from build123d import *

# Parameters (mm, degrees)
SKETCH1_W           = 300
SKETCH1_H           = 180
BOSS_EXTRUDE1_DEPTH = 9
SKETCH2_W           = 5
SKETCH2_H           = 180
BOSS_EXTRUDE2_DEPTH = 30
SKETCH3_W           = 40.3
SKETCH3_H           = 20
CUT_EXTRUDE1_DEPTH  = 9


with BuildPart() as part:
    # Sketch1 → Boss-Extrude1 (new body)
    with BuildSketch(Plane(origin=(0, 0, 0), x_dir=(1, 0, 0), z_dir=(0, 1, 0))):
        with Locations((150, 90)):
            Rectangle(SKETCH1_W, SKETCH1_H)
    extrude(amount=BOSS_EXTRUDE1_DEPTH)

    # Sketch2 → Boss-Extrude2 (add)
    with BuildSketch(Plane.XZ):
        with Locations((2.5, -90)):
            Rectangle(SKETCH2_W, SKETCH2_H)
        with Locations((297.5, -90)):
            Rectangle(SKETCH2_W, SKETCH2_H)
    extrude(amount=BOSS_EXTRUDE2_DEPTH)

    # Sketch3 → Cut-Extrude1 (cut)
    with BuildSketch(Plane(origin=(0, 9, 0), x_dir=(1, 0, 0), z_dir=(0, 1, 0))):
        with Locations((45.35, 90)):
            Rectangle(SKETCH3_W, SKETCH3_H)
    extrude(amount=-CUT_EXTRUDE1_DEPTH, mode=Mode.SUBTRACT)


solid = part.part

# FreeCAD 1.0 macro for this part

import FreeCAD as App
import Part
import Sketcher
from FreeCAD import Vector


def add_polygon(sketch, points):
    """Adds a closed chain of lines whose ends are joined by coincident constraints."""
    first, n = sketch.GeometryCount, len(points)
    for a, b in zip(points, points[1:] + points[:1]):
        sketch.addGeometry(Part.LineSegment(App.Vector(*a, 0), App.Vector(*b, 0)), False)
    for i in range(n):
        sketch.addConstraint(Sketcher.Constraint("Coincident", first + i, 2, first + (i + 1) % n, 1))

doc = App.newDocument("Part")
body = doc.addObject("PartDesign::Body", "Body")

# Sketch on XZ plane
sketch1 = body.newObject("Sketcher::SketchObject", "Sketch")
sketch1.AttachmentSupport = (doc.getObject("XZ_Plane"), [""])
sketch1.MapMode = "FlatFace"
add_polygon(sketch1, [(0, -180), (0, 0), (300, 0), (300, -180)])  # lines 0-3
sketch1.addConstraint([
    Sketcher.Constraint("Vertical", 0),
    Sketcher.Constraint("Horizontal", 1),
    Sketcher.Constraint("Vertical", 2),
    Sketcher.Constraint("Horizontal", 3),
    Sketcher.Constraint("Coincident", 0, 2, -1, 1),
    Sketcher.Constraint("DistanceX", 1, 1, 1, 2, 300.0),
    Sketcher.Constraint("DistanceY", 0, 1, 0, 2, 180.0),
])
pad1 = body.newObject("PartDesign::Pad", "Pad")
pad1.Profile = sketch1
pad1.Length = 9
pad1.Reversed = True

# Sketch on XZ plane
sketch2 = body.newObject("Sketcher::SketchObject", "Sketch001")
sketch2.AttachmentSupport = (doc.getObject("XZ_Plane"), [""])
sketch2.MapMode = "FlatFace"
add_polygon(sketch2, [(0, 0), (0, -180), (5, -180), (5, 0)])  # lines 0-3
add_polygon(sketch2, [(295, 0), (295, -180), (300, -180), (300, 0)])  # lines 4-7
sketch2.addConstraint([
    Sketcher.Constraint("Vertical", 0),
    Sketcher.Constraint("Horizontal", 1),
    Sketcher.Constraint("Vertical", 2),
    Sketcher.Constraint("Horizontal", 3),
    Sketcher.Constraint("Vertical", 4),
    Sketcher.Constraint("Horizontal", 5),
    Sketcher.Constraint("Vertical", 6),
    Sketcher.Constraint("Horizontal", 7),
    Sketcher.Constraint("Coincident", 3, 2, -1, 1),
    Sketcher.Constraint("PointOnObject", 6, 2, -1),
    Sketcher.Constraint("Horizontal", 1, 2, 4, 2),
    Sketcher.Constraint("Equal", 3, 5),
    Sketcher.Constraint("DistanceX", 1, 1, 1, 2, 5.0),
    Sketcher.Constraint("DistanceY", 0, 2, 0, 1, 180.0),
    Sketcher.Constraint("DistanceX", -1, 1, 4, 2, 295.0),
])
pad2 = body.newObject("PartDesign::Pad", "Pad001")
pad2.Profile = sketch2
pad2.Length = 30

# Sketch on XZ plane
sketch3 = body.newObject("Sketcher::SketchObject", "Sketch002")
sketch3.AttachmentSupport = (doc.getObject("XZ_Plane"), [""])
sketch3.MapMode = "FlatFace"
sketch3.AttachmentOffset = App.Placement(Vector(0, 0, -9), App.Rotation())
add_polygon(sketch3, [(25, -100), (25, -80), (66, -80), (66, -100)])  # lines 0-3
sketch3.addConstraint([
    Sketcher.Constraint("Vertical", 0),
    Sketcher.Constraint("Horizontal", 1),
    Sketcher.Constraint("Vertical", 2),
    Sketcher.Constraint("Horizontal", 3),
    Sketcher.Constraint("DistanceY", 0, 1, 0, 2, 20.0),
    Sketcher.Constraint("DistanceX", 1, 1, 1, 2, 40.3),
    Sketcher.Constraint("DistanceY", 0, 2, -1, 1, 80.0),
    Sketcher.Constraint("DistanceX", -1, 1, 0, 2, 25.2),
])
pocket1 = body.newObject("PartDesign::Pocket", "Pocket")
pocket1.Profile = sketch3
pocket1.Length = 9
pocket1.Reversed = True

doc.recompute()
